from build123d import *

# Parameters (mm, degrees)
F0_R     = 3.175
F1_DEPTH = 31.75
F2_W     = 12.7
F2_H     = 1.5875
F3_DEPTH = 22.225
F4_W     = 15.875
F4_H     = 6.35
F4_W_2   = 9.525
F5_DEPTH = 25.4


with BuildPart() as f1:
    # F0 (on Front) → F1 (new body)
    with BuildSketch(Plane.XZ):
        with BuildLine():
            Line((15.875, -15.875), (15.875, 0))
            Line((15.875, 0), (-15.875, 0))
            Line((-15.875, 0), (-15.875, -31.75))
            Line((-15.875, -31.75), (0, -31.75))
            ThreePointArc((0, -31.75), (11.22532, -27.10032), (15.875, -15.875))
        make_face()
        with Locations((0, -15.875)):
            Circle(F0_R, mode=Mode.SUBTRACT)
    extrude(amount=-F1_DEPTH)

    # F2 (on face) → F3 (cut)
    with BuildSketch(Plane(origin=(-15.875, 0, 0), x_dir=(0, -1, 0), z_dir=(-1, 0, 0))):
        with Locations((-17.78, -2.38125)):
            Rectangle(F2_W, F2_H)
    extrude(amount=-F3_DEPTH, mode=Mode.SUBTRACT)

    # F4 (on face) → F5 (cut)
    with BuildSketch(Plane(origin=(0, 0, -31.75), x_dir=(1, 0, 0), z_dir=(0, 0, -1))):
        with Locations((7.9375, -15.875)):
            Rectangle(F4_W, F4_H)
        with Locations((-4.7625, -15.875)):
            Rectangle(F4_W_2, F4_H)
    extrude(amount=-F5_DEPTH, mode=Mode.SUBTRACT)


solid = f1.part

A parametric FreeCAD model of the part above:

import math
import FreeCAD as App
import Part
import Sketcher
Q = App.Units.Quantity

doc = App.newDocument("Part")
body = doc.addObject("PartDesign::Body", "Body")

# Sketch on XZ plane
sketch1 = doc.addObject("Sketcher::SketchObject", "Sketch")
body.addObject(sketch1)
sketch1.AttachmentSupport = (doc.XZ_Plane, [""])
sketch1.MapMode = "FlatFace"
sketch1.addGeometry(Part.LineSegment(App.Vector(15.9, -15.9, 0), App.Vector(15.9, 0, 0)), False)
sketch1.addGeometry(Part.LineSegment(App.Vector(15.9, 0, 0), App.Vector(-15.9, 0, 0)), False)
sketch1.addGeometry(Part.LineSegment(App.Vector(-15.9, 0, 0), App.Vector(-15.9, -31.8, 0)), False)
sketch1.addGeometry(Part.LineSegment(App.Vector(-15.9, -31.8, 0), App.Vector(0, -31.8, 0)), False)
sketch1.addGeometry(Part.ArcOfCircle(Part.Circle(App.Vector(0, -15.9, 0), App.Vector(0, 0, 1), 15.9), math.radians(-90), math.radians(0)), False)
sketch1.addGeometry(Part.Circle(App.Vector(0, -15.9, 0), App.Vector(0, 0, 1), 3.2), False)
sketch1.addConstraint(Sketcher.Constraint("Coincident", 0, 2, 1, 1))
sketch1.addConstraint(Sketcher.Constraint("Coincident", 1, 2, 2, 1))
sketch1.addConstraint(Sketcher.Constraint("Coincident", 2, 2, 3, 1))
sketch1.addConstraint(Sketcher.Constraint("Tangent", 3, 2, 4, 1))
sketch1.addConstraint(Sketcher.Constraint("Tangent", 4, 2, 0, 1))
sketch1.addConstraint(Sketcher.Constraint("Vertical", 0))
sketch1.addConstraint(Sketcher.Constraint("Horizontal", 1))
sketch1.addConstraint(Sketcher.Constraint("Vertical", 2))
sketch1.addConstraint(Sketcher.Constraint("Horizontal", 3))
sketch1.addConstraint(Sketcher.Constraint("Coincident", 5, 3, 4, 3))
sketch1.addConstraint(Sketcher.Constraint("Symmetric", 0, 2, 1, 2, -1, 1))
sketch1.addConstraint(Sketcher.Constraint("PointOnObject", 4, 3, -2))
sketch1.addConstraint(Sketcher.Constraint("Equal", 3, 0))
sketch1.addConstraint(Sketcher.Constraint("Diameter", 5, Q("0.25 in")))
sketch1.addConstraint(Sketcher.Constraint("Radius", 4, Q("0.625 in")))
pad1 = doc.addObject("PartDesign::Pad", "Pad")
body.addObject(pad1)
pad1.Profile = sketch1
pad1.Length = Q("1.25 in")
pad1.Reversed = True

# Sketch on YZ plane
sketch2 = doc.addObject("Sketcher::SketchObject", "Sketch001")
body.addObject(sketch2)
sketch2.AttachmentSupport = (doc.YZ_Plane, [""])
sketch2.MapMode = "FlatFace"
sketch2.AttachmentOffset = App.Placement(App.Vector(0, 0, -0.625 * 25.4), App.Rotation())
sketch2.addGeometry(Part.LineSegment(App.Vector(24.1, -1.6, 0), App.Vector(24.1, -3.2, 0)), False)
sketch2.addGeometry(Part.LineSegment(App.Vector(24.1, -3.2, 0), App.Vector(11.4, -3.2, 0)), False)
sketch2.addGeometry(Part.LineSegment(App.Vector(11.4, -3.2, 0), App.Vector(11.4, -1.6, 0)), False)
sketch2.addGeometry(Part.LineSegment(App.Vector(11.4, -1.6, 0), App.Vector(24.1, -1.6, 0)), False)
sketch2.addConstraint(Sketcher.Constraint("Coincident", 0, 2, 1, 1))
sketch2.addConstraint(Sketcher.Constraint("Coincident", 1, 2, 2, 1))
sketch2.addConstraint(Sketcher.Constraint("Coincident", 2, 2, 3, 1))
sketch2.addConstraint(Sketcher.Constraint("Coincident", 3, 2, 0, 1))
sketch2.addConstraint(Sketcher.Constraint("Vertical", 0))
sketch2.addConstraint(Sketcher.Constraint("Horizontal", 1))
sketch2.addConstraint(Sketcher.Constraint("Vertical", 2))
sketch2.addConstraint(Sketcher.Constraint("Horizontal", 3))
sketch2.addConstraint(Sketcher.Constraint("DistanceX", 1, 2, 1, 1, Q("0.5 in")))
sketch2.addConstraint(Sketcher.Constraint("DistanceY", 0, 2, 0, 1, Q("0.0625 in")))
sketch2.addConstraint(Sketcher.Constraint("DistanceX", -1, 1, 0, 2, Q("0.95 in")))
sketch2.addConstraint(Sketcher.Constraint("DistanceY", 0, 2, -1, 1, Q("0.125 in")))
pocket1 = doc.addObject("PartDesign::Pocket", "Pocket")
body.addObject(pocket1)
pocket1.Profile = sketch2
pocket1.Length = Q("0.875 in")
pocket1.Reversed = True

# Sketch on XY plane
sketch3 = doc.addObject("Sketcher::SketchObject", "Sketch002")
body.addObject(sketch3)
sketch3.AttachmentSupport = (doc.XY_Plane, [""])
sketch3.MapMode = "FlatFace"
sketch3.AttachmentOffset = App.Placement(App.Vector(0, 0, -1.25 * 25.4), App.Rotation())
sketch3.addGeometry(Part.LineSegment(App.Vector(16, 19, 0), App.Vector(16, 13, 0)), False)
sketch3.addGeometry(Part.LineSegment(App.Vector(16, 13, 0), App.Vector(-10, 13, 0)), False)
sketch3.addGeometry(Part.LineSegment(App.Vector(-10, 13, 0), App.Vector(-10, 19, 0)), False)
sketch3.addGeometry(Part.LineSegment(App.Vector(-10, 19, 0), App.Vector(16, 19, 0)), False)
sketch3.addConstraint(Sketcher.Constraint("Coincident", 0, 2, 1, 1))
sketch3.addConstraint(Sketcher.Constraint("Coincident", 1, 2, 2, 1))
sketch3.addConstraint(Sketcher.Constraint("Coincident", 2, 2, 3, 1))
sketch3.addConstraint(Sketcher.Constraint("Coincident", 3, 2, 0, 1))
sketch3.addConstraint(Sketcher.Constraint("Vertical", 0))
sketch3.addConstraint(Sketcher.Constraint("Horizontal", 1))
sketch3.addConstraint(Sketcher.Constraint("Vertical", 2))
sketch3.addConstraint(Sketcher.Constraint("Horizontal", 3))
sketch3.addConstraint(Sketcher.Constraint("DistanceX", 1, 2, 1, 1, Q("1 in")))
sketch3.addConstraint(Sketcher.Constraint("DistanceY", 0, 2, 0, 1, Q("0.25 in")))
sketch3.addConstraint(Sketcher.Constraint("DistanceY", -1, 1, 0, 2, Q("0.5 in")))
sketch3.addConstraint(Sketcher.Constraint("DistanceX", -1, 1, 0, 2, Q("0.625 in")))
pocket2 = doc.addObject("PartDesign::Pocket", "Pocket001")
body.addObject(pocket2)
pocket2.Profile = sketch3
pocket2.Length = Q("1 in")
pocket2.Reversed = True

doc.recompute()
